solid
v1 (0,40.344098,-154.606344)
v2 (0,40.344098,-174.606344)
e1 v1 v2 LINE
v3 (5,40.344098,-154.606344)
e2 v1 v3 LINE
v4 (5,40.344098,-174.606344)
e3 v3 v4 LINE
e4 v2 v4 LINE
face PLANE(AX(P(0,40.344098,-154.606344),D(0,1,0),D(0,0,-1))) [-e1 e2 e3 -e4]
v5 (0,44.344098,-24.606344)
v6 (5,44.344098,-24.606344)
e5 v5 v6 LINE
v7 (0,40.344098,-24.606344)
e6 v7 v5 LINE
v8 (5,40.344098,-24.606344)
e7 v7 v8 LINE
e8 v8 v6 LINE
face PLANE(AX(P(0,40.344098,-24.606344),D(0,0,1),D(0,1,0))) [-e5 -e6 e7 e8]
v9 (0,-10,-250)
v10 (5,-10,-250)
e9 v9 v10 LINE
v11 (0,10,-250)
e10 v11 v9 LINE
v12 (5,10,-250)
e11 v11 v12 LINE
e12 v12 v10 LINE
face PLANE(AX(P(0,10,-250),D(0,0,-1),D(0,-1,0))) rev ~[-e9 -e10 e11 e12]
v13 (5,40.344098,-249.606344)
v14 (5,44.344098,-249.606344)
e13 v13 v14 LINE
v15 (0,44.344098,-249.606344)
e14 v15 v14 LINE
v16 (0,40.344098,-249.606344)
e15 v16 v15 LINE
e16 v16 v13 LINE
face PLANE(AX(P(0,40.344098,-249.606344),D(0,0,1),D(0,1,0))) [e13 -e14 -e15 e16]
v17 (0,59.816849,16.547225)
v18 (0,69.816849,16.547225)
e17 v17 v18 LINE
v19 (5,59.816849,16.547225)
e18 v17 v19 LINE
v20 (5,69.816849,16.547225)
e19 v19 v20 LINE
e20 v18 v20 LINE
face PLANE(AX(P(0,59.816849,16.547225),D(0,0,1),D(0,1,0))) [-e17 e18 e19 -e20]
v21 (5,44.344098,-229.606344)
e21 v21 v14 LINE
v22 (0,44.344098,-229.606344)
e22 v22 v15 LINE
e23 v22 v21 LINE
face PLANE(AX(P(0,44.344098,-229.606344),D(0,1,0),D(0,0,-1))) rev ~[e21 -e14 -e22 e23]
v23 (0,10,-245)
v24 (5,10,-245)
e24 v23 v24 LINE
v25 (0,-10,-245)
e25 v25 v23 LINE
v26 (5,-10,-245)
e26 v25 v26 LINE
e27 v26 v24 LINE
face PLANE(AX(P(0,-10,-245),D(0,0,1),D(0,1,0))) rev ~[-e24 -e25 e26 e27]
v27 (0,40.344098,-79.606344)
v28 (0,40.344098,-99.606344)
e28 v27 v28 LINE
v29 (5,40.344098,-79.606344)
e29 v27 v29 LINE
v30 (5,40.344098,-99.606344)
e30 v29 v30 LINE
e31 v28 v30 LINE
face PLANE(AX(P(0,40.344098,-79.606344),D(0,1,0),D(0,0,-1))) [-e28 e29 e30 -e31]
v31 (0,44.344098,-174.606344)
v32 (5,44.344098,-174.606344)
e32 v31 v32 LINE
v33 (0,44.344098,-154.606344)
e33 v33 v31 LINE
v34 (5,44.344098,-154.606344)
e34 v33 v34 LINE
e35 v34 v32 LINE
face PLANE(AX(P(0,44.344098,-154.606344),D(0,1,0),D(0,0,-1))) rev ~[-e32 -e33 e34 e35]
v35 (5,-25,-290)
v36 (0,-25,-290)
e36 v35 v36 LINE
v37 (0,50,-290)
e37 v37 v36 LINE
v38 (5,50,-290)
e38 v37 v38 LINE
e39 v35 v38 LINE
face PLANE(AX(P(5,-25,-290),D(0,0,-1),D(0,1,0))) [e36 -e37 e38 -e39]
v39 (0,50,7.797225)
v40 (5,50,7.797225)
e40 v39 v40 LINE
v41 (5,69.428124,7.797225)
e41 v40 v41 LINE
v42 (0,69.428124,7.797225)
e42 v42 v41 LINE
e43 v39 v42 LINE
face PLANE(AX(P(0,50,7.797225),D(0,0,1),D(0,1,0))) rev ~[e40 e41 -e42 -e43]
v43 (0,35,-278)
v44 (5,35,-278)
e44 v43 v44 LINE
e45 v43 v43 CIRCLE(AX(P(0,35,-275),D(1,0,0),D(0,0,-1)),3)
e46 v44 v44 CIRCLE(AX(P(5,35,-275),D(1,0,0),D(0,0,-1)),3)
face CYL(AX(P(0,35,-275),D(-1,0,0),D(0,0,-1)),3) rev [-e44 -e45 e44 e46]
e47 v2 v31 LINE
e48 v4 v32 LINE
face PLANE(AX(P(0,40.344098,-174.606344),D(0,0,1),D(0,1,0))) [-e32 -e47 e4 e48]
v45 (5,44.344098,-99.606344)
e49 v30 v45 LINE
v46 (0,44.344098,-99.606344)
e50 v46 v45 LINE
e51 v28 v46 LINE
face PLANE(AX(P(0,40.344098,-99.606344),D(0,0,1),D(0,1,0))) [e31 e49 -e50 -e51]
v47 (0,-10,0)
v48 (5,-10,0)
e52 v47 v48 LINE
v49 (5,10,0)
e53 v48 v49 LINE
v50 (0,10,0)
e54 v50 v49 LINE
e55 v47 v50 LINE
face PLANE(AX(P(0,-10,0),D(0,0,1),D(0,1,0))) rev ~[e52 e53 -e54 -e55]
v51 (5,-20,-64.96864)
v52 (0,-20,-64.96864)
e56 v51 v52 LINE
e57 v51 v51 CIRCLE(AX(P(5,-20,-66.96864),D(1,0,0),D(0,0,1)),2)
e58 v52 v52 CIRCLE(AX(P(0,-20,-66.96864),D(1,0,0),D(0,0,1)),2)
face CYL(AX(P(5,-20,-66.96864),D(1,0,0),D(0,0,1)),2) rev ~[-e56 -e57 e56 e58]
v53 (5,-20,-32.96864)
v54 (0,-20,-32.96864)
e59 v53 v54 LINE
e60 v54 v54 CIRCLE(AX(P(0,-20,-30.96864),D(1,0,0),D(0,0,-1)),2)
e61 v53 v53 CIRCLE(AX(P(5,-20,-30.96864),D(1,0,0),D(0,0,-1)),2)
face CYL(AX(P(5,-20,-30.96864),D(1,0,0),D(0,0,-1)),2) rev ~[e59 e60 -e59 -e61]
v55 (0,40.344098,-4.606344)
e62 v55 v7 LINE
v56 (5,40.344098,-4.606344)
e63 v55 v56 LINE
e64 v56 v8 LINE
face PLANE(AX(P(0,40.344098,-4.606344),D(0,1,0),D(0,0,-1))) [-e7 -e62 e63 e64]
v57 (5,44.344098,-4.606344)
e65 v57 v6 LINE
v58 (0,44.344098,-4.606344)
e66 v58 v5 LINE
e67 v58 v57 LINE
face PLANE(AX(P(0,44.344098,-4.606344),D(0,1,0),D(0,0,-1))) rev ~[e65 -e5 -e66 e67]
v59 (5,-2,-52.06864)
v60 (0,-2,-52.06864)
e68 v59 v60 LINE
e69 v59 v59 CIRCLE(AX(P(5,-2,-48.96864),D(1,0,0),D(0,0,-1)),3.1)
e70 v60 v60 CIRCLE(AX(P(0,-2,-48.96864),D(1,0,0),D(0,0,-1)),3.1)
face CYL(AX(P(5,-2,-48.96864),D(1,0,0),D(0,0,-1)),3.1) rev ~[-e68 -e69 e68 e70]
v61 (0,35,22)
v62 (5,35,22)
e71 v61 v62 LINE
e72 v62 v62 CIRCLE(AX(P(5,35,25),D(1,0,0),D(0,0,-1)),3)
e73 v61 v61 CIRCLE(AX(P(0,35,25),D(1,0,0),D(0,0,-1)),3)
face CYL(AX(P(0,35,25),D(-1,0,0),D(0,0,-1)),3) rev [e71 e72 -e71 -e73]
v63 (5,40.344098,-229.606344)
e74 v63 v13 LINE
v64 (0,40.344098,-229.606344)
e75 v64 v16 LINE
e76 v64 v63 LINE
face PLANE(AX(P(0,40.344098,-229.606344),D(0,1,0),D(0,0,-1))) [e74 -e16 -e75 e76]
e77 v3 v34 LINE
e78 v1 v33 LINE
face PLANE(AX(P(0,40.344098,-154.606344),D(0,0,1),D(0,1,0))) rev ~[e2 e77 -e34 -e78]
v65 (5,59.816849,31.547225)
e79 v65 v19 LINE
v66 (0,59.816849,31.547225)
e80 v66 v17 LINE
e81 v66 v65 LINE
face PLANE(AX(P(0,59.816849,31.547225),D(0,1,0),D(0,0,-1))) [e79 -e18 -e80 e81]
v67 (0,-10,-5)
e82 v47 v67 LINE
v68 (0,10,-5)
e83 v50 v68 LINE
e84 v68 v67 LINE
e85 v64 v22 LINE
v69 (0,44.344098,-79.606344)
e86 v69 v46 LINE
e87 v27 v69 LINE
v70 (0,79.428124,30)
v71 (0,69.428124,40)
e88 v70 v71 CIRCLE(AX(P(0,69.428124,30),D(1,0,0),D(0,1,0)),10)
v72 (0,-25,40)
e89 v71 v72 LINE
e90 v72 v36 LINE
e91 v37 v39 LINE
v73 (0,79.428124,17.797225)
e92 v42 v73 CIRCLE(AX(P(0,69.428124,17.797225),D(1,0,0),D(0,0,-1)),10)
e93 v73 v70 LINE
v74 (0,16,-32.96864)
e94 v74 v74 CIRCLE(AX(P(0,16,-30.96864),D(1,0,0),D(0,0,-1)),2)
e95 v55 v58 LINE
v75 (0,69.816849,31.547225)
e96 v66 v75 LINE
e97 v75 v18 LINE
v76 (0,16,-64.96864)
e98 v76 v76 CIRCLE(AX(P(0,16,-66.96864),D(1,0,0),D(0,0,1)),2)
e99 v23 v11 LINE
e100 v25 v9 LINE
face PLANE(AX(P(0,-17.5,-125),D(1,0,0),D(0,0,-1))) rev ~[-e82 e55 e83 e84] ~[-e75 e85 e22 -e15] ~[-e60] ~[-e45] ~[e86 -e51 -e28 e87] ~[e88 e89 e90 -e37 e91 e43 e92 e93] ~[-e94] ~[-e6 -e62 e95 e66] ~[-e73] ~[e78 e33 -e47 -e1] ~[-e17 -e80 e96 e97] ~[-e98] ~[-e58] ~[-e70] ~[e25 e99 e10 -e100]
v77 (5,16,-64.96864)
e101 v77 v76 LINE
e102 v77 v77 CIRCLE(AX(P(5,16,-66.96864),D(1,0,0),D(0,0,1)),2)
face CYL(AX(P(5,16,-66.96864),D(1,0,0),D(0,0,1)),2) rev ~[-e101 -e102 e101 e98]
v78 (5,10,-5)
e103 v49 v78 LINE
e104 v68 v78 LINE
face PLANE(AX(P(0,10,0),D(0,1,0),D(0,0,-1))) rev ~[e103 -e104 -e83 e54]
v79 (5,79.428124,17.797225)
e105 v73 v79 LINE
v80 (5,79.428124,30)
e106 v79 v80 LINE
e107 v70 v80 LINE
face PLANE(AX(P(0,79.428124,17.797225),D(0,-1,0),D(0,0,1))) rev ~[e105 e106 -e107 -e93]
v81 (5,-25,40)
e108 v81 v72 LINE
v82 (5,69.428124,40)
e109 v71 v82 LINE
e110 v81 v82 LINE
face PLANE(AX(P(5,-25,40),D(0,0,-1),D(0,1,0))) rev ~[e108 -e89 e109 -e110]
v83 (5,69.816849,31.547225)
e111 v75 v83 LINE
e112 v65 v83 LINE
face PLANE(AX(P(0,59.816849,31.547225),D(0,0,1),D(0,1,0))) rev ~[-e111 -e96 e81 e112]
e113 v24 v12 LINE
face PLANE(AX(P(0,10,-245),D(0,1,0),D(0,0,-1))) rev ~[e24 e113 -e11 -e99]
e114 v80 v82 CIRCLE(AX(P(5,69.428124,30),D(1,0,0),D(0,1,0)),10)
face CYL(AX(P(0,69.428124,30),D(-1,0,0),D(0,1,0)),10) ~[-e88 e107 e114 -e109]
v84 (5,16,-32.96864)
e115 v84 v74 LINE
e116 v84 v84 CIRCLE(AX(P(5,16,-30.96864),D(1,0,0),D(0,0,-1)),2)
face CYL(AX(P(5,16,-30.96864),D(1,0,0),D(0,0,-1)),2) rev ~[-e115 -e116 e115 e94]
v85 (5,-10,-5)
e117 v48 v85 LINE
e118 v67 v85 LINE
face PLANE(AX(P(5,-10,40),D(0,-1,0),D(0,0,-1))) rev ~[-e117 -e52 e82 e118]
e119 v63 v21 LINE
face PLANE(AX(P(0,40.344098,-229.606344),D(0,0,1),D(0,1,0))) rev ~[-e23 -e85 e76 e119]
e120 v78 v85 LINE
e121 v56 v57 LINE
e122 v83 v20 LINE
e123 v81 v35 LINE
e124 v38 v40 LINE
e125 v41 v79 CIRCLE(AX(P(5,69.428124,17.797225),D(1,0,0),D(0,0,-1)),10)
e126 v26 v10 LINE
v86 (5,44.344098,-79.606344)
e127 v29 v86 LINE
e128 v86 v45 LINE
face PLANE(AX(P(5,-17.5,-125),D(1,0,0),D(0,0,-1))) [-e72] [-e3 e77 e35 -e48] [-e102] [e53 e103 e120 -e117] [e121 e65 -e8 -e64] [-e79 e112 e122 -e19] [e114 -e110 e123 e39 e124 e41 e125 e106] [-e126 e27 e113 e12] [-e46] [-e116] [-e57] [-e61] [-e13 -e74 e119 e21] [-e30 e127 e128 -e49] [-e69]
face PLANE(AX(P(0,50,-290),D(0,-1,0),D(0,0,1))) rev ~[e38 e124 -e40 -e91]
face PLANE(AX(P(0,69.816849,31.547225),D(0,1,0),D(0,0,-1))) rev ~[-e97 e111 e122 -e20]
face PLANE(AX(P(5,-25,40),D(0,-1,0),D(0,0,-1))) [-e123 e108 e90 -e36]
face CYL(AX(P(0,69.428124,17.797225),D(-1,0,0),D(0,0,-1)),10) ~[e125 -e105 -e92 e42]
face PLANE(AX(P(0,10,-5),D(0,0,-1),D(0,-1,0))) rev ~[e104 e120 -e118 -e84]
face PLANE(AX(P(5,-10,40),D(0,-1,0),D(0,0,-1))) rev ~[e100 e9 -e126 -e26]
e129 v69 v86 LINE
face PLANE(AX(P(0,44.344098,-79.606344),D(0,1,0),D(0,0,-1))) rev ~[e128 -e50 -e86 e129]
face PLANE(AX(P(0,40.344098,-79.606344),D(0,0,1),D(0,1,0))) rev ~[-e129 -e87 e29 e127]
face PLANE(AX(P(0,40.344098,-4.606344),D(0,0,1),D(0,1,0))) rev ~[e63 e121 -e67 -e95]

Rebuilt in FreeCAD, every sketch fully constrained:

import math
import FreeCAD as App
import Part
import Sketcher
Q = App.Units.Quantity


def add_polygon(sketch, points):
    """Adds a closed chain of lines whose ends are joined by coincident constraints."""
    first, n = sketch.GeometryCount, len(points)
    for a, b in zip(points, points[1:] + points[:1]):
        sketch.addGeometry(Part.LineSegment(App.Vector(*a, 0), App.Vector(*b, 0)), False)
    for i in range(n):
        sketch.addConstraint(Sketcher.Constraint("Coincident", first + i, 2, first + (i + 1) % n, 1))

doc = App.newDocument("Part")
body = doc.addObject("PartDesign::Body", "Body")

sketch1 = body.newObject("Sketcher::SketchObject", "Sketch")
sketch1.AttachmentSupport = (doc.getObject("YZ_Plane"), [""])
sketch1.MapMode = "FlatFace"
sketch1.addGeometry(Part.LineSegment(App.Vector(-10, 40, 0), App.Vector(-10, 0, 0)), False)
sketch1.addGeometry(Part.LineSegment(App.Vector(-10, 0, 0), App.Vector(10, 0, 0)), False)
sketch1.addGeometry(Part.LineSegment(App.Vector(10, 0, 0), App.Vector(10, -5, 0)), False)
sketch1.addGeometry(Part.LineSegment(App.Vector(10, -5, 0), App.Vector(-10, -5, 0)), False)
sketch1.addGeometry(Part.LineSegment(App.Vector(-10, -5, 0), App.Vector(-10, -245, 0)), False)
sketch1.addGeometry(Part.LineSegment(App.Vector(-10, -245, 0), App.Vector(10, -245, 0)), False)
sketch1.addGeometry(Part.LineSegment(App.Vector(10, -245, 0), App.Vector(10, -250, 0)), False)
sketch1.addGeometry(Part.LineSegment(App.Vector(10, -250, 0), App.Vector(-10, -250, 0)), False)
sketch1.addGeometry(Part.LineSegment(App.Vector(-10, -250, 0), App.Vector(-10, -290, 0)), False)
sketch1.addGeometry(Part.LineSegment(App.Vector(-10, -290, 0), App.Vector(50, -290, 0)), False)
sketch1.addGeometry(Part.LineSegment(App.Vector(50, -290, 0), App.Vector(50, 7.8, 0)), False)
sketch1.addGeometry(Part.LineSegment(App.Vector(50, 7.8, 0), App.Vector(69.4, 7.8, 0)), False)
sketch1.addGeometry(Part.ArcOfCircle(Part.Circle(App.Vector(69.4, 17.8, 0), App.Vector(0, 0, 1), 10), math.radians(-90), math.radians(0)), False)
sketch1.addGeometry(Part.LineSegment(App.Vector(79.4, 17.8, 0), App.Vector(79.4, 30, 0)), False)
sketch1.addGeometry(Part.ArcOfCircle(Part.Circle(App.Vector(69.4, 30, 0), App.Vector(0, 0, 1), 10), math.radians(0), math.radians(90)), False)
sketch1.addGeometry(Part.LineSegment(App.Vector(69.4, 40, 0), App.Vector(-10, 40, 0)), False)
sketch1.addGeometry(Part.Circle(App.Vector(35, 25, 0), App.Vector(0, 0, 1), 3), False)
add_polygon(sketch1, [(40.3, -24.6), (40.3, -4.6), (44.3, -4.6), (44.3, -24.6)])
add_polygon(sketch1, [(40.3, -99.6), (40.3, -79.6), (44.3, -79.6), (44.3, -99.6)])
sketch1.addGeometry(Part.Circle(App.Vector(35, -275, 0), App.Vector(0, 0, 1), 3), False)
add_polygon(sketch1, [(40.3, -174.6), (40.3, -154.6), (44.3, -154.6), (44.3, -174.6)])
add_polygon(sketch1, [(40.3, -249.6), (40.3, -229.6), (44.3, -229.6), (44.3, -249.6)])
add_polygon(sketch1, [(59.8, 16.5), (59.8, 31.5), (69.8, 31.5), (69.8, 16.5)])
sketch1.addConstraint(Sketcher.Constraint("Coincident", 0, 2, 1, 1))
sketch1.addConstraint(Sketcher.Constraint("Coincident", 1, 2, 2, 1))
sketch1.addConstraint(Sketcher.Constraint("Coincident", 2, 2, 3, 1))
sketch1.addConstraint(Sketcher.Constraint("Coincident", 3, 2, 4, 1))
sketch1.addConstraint(Sketcher.Constraint("Coincident", 4, 2, 5, 1))
sketch1.addConstraint(Sketcher.Constraint("Coincident", 5, 2, 6, 1))
sketch1.addConstraint(Sketcher.Constraint("Coincident", 6, 2, 7, 1))
sketch1.addConstraint(Sketcher.Constraint("Coincident", 7, 2, 8, 1))
sketch1.addConstraint(Sketcher.Constraint("Coincident", 8, 2, 9, 1))
sketch1.addConstraint(Sketcher.Constraint("Coincident", 9, 2, 10, 1))
sketch1.addConstraint(Sketcher.Constraint("Coincident", 10, 2, 11, 1))
sketch1.addConstraint(Sketcher.Constraint("Tangent", 11, 2, 12, 1))
sketch1.addConstraint(Sketcher.Constraint("Tangent", 12, 2, 13, 1))
sketch1.addConstraint(Sketcher.Constraint("Tangent", 13, 2, 14, 1))
sketch1.addConstraint(Sketcher.Constraint("Tangent", 14, 2, 15, 1))
sketch1.addConstraint(Sketcher.Constraint("Coincident", 15, 2, 0, 1))
sketch1.addConstraint(Sketcher.Constraint("Vertical", 0))
sketch1.addConstraint(Sketcher.Constraint("Horizontal", 1))
sketch1.addConstraint(Sketcher.Constraint("Vertical", 2))
sketch1.addConstraint(Sketcher.Constraint("Horizontal", 3))
sketch1.addConstraint(Sketcher.Constraint("Vertical", 4))
sketch1.addConstraint(Sketcher.Constraint("Horizontal", 5))
sketch1.addConstraint(Sketcher.Constraint("Vertical", 6))
sketch1.addConstraint(Sketcher.Constraint("Horizontal", 7))
sketch1.addConstraint(Sketcher.Constraint("Vertical", 8))
sketch1.addConstraint(Sketcher.Constraint("Horizontal", 9))
sketch1.addConstraint(Sketcher.Constraint("Vertical", 10))
sketch1.addConstraint(Sketcher.Constraint("Horizontal", 11))
sketch1.addConstraint(Sketcher.Constraint("Vertical", 13))
sketch1.addConstraint(Sketcher.Constraint("Horizontal", 15))
sketch1.addConstraint(Sketcher.Constraint("Vertical", 17))
sketch1.addConstraint(Sketcher.Constraint("Horizontal", 18))
sketch1.addConstraint(Sketcher.Constraint("Vertical", 19))
sketch1.addConstraint(Sketcher.Constraint("Horizontal", 20))
sketch1.addConstraint(Sketcher.Constraint("Vertical", 21))
sketch1.addConstraint(Sketcher.Constraint("Horizontal", 22))
sketch1.addConstraint(Sketcher.Constraint("Vertical", 23))
sketch1.addConstraint(Sketcher.Constraint("Horizontal", 24))
sketch1.addConstraint(Sketcher.Constraint("Vertical", 26))
sketch1.addConstraint(Sketcher.Constraint("Horizontal", 27))
sketch1.addConstraint(Sketcher.Constraint("Vertical", 28))
sketch1.addConstraint(Sketcher.Constraint("Horizontal", 29))
sketch1.addConstraint(Sketcher.Constraint("Vertical", 30))
sketch1.addConstraint(Sketcher.Constraint("Horizontal", 31))
sketch1.addConstraint(Sketcher.Constraint("Vertical", 32))
sketch1.addConstraint(Sketcher.Constraint("Horizontal", 33))
sketch1.addConstraint(Sketcher.Constraint("Vertical", 34))
sketch1.addConstraint(Sketcher.Constraint("Horizontal", 35))
sketch1.addConstraint(Sketcher.Constraint("Vertical", 36))
sketch1.addConstraint(Sketcher.Constraint("Horizontal", 37))
sketch1.addConstraint(Sketcher.Constraint("Equal", 12, 14))
sketch1.addConstraint(Sketcher.Constraint("Equal", 16, 25))
sketch1.addConstraint(Sketcher.Constraint("Symmetric", 0, 2, 1, 2, -1, 1))
sketch1.addConstraint(Sketcher.Constraint("Vertical", 16, 3, 25, 3))
sketch1.addConstraint(Sketcher.Constraint("Vertical", 0, 2, 3, 2))
sketch1.addConstraint(Sketcher.Constraint("Vertical", 2, 2, 5, 2))
sketch1.addConstraint(Sketcher.Constraint("Vertical", 4, 2, 7, 2))
sketch1.addConstraint(Sketcher.Constraint("Vertical", 20, 2, 21, 2))
sketch1.addConstraint(Sketcher.Constraint("Vertical", 19, 2, 22, 2))
sketch1.addConstraint(Sketcher.Constraint("Vertical", 24, 2, 26, 2))
sketch1.addConstraint(Sketcher.Constraint("Vertical", 23, 2, 27, 2))
sketch1.addConstraint(Sketcher.Constraint("Vertical", 29, 2, 30, 2))
sketch1.addConstraint(Sketcher.Constraint("Vertical", 28, 2, 31, 2))
sketch1.addConstraint(Sketcher.Constraint("Equal", 2, 6))
sketch1.addConstraint(Sketcher.Constraint("Equal", 0, 8))
sketch1.addConstraint(Sketcher.Constraint("Equal", 7, 17))
sketch1.addConstraint(Sketcher.Constraint("Equal", 19, 21))
sketch1.addConstraint(Sketcher.Constraint("Equal", 23, 26))
sketch1.addConstraint(Sketcher.Constraint("Equal", 28, 30))
sketch1.addConstraint(Sketcher.Constraint("Diameter", 16, Q("6 mm")))
sketch1.addConstraint(Sketcher.Constraint("Radius", 12, Q("10 mm")))
sketch1.addConstraint(Sketcher.Constraint("DistanceX", 1, 1, 1, 2, Q("20 mm")))
sketch1.addConstraint(Sketcher.Constraint("DistanceX", 9, 1, 9, 2, Q("60 mm")))
sketch1.addConstraint(Sketcher.Constraint("DistanceX", 18, 1, 18, 2, Q("4 mm")))
sketch1.addConstraint(Sketcher.Constraint("DistanceX", 35, 1, 35, 2, Q("10 mm")))
sketch1.addConstraint(Sketcher.Constraint("DistanceY", 0, 2, 0, 1, Q("40 mm")))
sketch1.addConstraint(Sketcher.Constraint("DistanceY", 2, 2, 2, 1, Q("5 mm")))
sketch1.addConstraint(Sketcher.Constraint("DistanceY", 4, 2, 4, 1, Q("240 mm")))
sketch1.addConstraint(Sketcher.Constraint("DistanceY", 34, 1, 34, 2, Q("15 mm")))
sketch1.addConstraint(Sketcher.Constraint("DistanceX", -1, 1, 16, 3, Q("35 mm")))
sketch1.addConstraint(Sketcher.Constraint("DistanceY", -1, 1, 16, 3, Q("25 mm")))
sketch1.addConstraint(Sketcher.Constraint("DistanceY", 25, 3, -1, 1, Q("275 mm")))
sketch1.addConstraint(Sketcher.Constraint("DistanceY", 21, 2, 20, 2, Q("55 mm")))
sketch1.addConstraint(Sketcher.Constraint("DistanceY", 26, 2, 24, 2, Q("55 mm")))
sketch1.addConstraint(Sketcher.Constraint("DistanceY", 31, 2, 28, 2, Q("55 mm")))
sketch1.addConstraint(Sketcher.Constraint("DistanceY", 12, 3, 34, 2, Q("13.75 mm")))
sketch1.addConstraint(Sketcher.Constraint("DistanceX", 11, 1, 11, 2, Q("19.428124 mm")))
sketch1.addConstraint(Sketcher.Constraint("DistanceY", 10, 1, 10, 2, Q("297.797225 mm")))
sketch1.addConstraint(Sketcher.Constraint("DistanceX", -1, 1, 34, 2, Q("59.816849 mm")))
sketch1.addConstraint(Sketcher.Constraint("DistanceY", 17, 2, 10, 2, Q("12.403569 mm")))
sketch1.addConstraint(Sketcher.Constraint("DistanceX", -1, 1, 17, 2, Q("40.344098 mm")))
pad1 = body.newObject("PartDesign::Pad", "Pad")
pad1.Profile = sketch1
pad1.Length = 5

sketch2 = body.newObject("Sketcher::SketchObject", "Sketch001")
sketch2.AttachmentSupport = (doc.getObject("YZ_Plane"), [""])
sketch2.MapMode = "FlatFace"
sketch2.AttachmentOffset = App.Placement(App.Vector(0, 0, 5), App.Rotation())
add_polygon(sketch2, [(-10, 40), (-25, 40), (-25, -290), (-10, -290)])
sketch2.addConstraint(Sketcher.Constraint("Horizontal", 0))
sketch2.addConstraint(Sketcher.Constraint("Vertical", 1))
sketch2.addConstraint(Sketcher.Constraint("Horizontal", 2))
sketch2.addConstraint(Sketcher.Constraint("Vertical", 3))
sketch2.addConstraint(Sketcher.Constraint("DistanceX", 0, 2, 0, 1, Q("15 mm")))
sketch2.addConstraint(Sketcher.Constraint("DistanceY", 1, 2, 1, 1, Q("330 mm")))
sketch2.addConstraint(Sketcher.Constraint("DistanceX", 0, 2, -1, 1, Q("25 mm")))
sketch2.addConstraint(Sketcher.Constraint("DistanceY", -1, 1, 0, 2, Q("40 mm")))
pad2 = body.newObject("PartDesign::Pad", "Pad001")
pad2.Profile = sketch2
pad2.Length = 5
pad2.Reversed = True

sketch3 = body.newObject("Sketcher::SketchObject", "Sketch002")
sketch3.AttachmentSupport = (doc.getObject("YZ_Plane"), [""])
sketch3.MapMode = "FlatFace"
sketch3.AttachmentOffset = App.Placement(App.Vector(0, 0, 5), App.Rotation())
sketch3.addGeometry(Part.Circle(App.Vector(16, -31, 0), App.Vector(0, 0, 1), 2), False)
sketch3.addGeometry(Part.Circle(App.Vector(-20, -31, 0), App.Vector(0, 0, 1), 2), False)
sketch3.addGeometry(Part.Circle(App.Vector(-20, -67, 0), App.Vector(0, 0, 1), 2), False)
sketch3.addGeometry(Part.Circle(App.Vector(16, -67, 0), App.Vector(0, 0, 1), 2), False)
sketch3.addGeometry(Part.Circle(App.Vector(-2, -49, 0), App.Vector(0, 0, 1), 3.1), False)
sketch3.addConstraint(Sketcher.Constraint("Equal", 0, 1))
sketch3.addConstraint(Sketcher.Constraint("Equal", 1, 2))
sketch3.addConstraint(Sketcher.Constraint("Equal", 2, 3))
sketch3.addConstraint(Sketcher.Constraint("Horizontal", 0, 3, 1, 3))
sketch3.addConstraint(Sketcher.Constraint("Horizontal", 2, 3, 3, 3))
sketch3.addConstraint(Sketcher.Constraint("Vertical", 1, 3, 2, 3))
sketch3.addConstraint(Sketcher.Constraint("Vertical", 0, 3, 3, 3))
sketch3.addConstraint(Sketcher.Constraint("Diameter", 0, Q("4 mm")))
sketch3.addConstraint(Sketcher.Constraint("Diameter", 4, Q("6.2 mm")))
sketch3.addConstraint(Sketcher.Constraint("DistanceX", -1, 1, 0, 3, Q("16 mm")))
sketch3.addConstraint(Sketcher.Constraint("DistanceX", 1, 3, -1, 1, Q("20 mm")))
sketch3.addConstraint(Sketcher.Constraint("DistanceX", 4, 3, -1, 1, Q("2 mm")))
sketch3.addConstraint(Sketcher.Constraint("DistanceY", 2, 3, 1, 3, Q("36 mm")))
sketch3.addConstraint(Sketcher.Constraint("DistanceY", 2, 3, 4, 3, Q("18 mm")))
sketch3.addConstraint(Sketcher.Constraint("DistanceY", 0, 3, -1, 1, Q("30.96864 mm")))
pocket1 = body.newObject("PartDesign::Pocket", "Pocket")
pocket1.Profile = sketch3
pocket1.Length = 5

doc.recompute()
